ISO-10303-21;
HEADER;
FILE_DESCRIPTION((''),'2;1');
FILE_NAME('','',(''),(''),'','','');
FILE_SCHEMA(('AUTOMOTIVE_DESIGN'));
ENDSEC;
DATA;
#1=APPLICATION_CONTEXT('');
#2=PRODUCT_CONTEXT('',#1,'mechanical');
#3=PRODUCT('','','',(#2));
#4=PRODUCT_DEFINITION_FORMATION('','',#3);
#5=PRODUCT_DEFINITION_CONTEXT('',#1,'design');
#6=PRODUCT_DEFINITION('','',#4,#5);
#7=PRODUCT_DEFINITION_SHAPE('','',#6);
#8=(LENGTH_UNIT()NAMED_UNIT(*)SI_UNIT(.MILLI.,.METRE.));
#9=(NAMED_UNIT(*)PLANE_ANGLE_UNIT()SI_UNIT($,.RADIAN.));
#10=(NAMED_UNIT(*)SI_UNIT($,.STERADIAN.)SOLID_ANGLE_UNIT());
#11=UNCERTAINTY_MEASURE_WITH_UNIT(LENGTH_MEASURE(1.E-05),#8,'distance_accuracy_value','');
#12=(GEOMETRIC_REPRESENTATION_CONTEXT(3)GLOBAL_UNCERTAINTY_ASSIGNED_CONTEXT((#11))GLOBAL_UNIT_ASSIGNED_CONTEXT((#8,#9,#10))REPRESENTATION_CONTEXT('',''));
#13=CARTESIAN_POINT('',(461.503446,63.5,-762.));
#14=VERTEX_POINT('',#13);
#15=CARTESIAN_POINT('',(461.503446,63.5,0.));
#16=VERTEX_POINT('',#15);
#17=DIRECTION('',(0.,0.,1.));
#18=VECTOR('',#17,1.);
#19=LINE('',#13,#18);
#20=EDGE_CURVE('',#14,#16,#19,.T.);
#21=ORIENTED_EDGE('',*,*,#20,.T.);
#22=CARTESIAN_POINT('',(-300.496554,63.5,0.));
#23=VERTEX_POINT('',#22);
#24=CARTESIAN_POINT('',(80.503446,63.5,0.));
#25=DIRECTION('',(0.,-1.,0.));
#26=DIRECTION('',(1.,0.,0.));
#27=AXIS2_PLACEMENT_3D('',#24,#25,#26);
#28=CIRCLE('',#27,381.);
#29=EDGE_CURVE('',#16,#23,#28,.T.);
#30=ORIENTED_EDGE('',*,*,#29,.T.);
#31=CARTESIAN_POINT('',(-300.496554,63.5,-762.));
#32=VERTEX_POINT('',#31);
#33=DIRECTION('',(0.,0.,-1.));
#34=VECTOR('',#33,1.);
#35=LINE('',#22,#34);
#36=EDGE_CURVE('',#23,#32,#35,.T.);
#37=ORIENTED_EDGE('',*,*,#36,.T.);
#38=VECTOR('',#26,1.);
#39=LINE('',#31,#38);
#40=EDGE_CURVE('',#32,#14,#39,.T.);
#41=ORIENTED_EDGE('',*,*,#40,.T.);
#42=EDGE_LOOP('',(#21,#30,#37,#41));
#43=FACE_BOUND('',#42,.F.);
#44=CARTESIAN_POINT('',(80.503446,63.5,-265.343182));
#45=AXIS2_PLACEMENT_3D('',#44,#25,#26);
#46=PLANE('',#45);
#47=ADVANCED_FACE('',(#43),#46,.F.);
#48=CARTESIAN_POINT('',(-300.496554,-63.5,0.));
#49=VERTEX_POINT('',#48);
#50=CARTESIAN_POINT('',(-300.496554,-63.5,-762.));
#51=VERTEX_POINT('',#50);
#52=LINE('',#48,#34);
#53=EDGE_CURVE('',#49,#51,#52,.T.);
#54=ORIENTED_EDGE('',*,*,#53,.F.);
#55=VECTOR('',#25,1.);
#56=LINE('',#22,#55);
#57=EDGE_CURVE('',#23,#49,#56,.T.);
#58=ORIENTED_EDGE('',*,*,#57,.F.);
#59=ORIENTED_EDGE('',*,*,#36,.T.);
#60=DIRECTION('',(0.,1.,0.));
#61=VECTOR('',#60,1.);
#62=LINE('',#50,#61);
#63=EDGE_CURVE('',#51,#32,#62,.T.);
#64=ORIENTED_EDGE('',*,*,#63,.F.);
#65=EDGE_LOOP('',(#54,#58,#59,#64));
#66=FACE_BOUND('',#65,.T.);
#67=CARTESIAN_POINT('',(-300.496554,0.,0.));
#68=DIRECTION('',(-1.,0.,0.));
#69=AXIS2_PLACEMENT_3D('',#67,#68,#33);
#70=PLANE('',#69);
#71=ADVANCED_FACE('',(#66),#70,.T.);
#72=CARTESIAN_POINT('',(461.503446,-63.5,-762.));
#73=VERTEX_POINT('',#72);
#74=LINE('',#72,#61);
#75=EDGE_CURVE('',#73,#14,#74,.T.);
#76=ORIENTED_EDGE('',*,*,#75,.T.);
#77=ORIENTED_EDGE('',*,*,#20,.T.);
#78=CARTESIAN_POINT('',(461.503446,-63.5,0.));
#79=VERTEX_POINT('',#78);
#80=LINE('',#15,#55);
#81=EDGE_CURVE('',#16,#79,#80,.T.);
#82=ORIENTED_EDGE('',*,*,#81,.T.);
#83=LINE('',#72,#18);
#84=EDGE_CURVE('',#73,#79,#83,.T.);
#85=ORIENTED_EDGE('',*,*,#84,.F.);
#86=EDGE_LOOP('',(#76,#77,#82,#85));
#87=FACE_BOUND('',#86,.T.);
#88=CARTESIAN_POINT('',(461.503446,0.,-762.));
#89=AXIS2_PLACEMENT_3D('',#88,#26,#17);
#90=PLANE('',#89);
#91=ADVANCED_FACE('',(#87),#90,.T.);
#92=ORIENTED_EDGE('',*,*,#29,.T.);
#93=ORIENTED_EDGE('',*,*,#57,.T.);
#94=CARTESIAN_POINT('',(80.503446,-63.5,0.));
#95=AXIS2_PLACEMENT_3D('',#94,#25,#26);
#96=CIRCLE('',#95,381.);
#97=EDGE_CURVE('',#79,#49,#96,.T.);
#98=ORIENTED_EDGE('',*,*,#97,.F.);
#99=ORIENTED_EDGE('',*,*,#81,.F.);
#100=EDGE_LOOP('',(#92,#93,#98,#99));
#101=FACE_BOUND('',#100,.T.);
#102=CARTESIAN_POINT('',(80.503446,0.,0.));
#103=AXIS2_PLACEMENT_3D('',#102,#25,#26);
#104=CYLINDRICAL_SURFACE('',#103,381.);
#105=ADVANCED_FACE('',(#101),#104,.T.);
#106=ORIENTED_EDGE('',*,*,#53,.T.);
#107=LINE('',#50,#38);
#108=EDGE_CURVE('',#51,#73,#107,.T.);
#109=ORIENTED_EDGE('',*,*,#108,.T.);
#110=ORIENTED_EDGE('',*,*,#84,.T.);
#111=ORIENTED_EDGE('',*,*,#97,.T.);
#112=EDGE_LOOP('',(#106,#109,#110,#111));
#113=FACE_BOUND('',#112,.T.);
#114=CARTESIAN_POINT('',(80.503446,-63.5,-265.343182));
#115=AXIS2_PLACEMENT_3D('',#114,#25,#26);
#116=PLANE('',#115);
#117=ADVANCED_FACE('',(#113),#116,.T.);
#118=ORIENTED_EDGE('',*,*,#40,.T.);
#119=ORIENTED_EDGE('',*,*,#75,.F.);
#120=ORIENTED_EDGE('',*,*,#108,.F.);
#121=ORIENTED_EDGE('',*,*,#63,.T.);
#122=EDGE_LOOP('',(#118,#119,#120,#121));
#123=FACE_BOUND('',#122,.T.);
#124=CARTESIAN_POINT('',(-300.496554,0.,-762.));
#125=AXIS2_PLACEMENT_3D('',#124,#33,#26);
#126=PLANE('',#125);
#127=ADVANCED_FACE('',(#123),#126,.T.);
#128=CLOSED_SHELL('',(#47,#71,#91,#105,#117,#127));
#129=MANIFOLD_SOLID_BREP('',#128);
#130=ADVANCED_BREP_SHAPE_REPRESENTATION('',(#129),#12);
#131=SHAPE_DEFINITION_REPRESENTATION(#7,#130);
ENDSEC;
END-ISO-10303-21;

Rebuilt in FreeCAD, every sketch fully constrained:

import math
import FreeCAD as App
import Part
import Sketcher

V = App.Vector
Q = App.Units.Quantity

doc = App.newDocument("Part")
body = doc.addObject("PartDesign::Body", "Body")

# Sketch on XZ plane
sketch1 = body.newObject("Sketcher::SketchObject", "Sketch")
sketch1.AttachmentSupport = (doc.getObject("XZ_Plane"), [""])
sketch1.MapMode = "FlatFace"
sketch1.addGeometry(Part.LineSegment(V(462, -762, 0), V(462, 0, 0)), False)
sketch1.addGeometry(Part.ArcOfCircle(Part.Circle(V(81, 0, 0), V(0, 0, 1), 381), math.radians(0), math.radians(180)), False)
sketch1.addGeometry(Part.LineSegment(V(-300, 0, 0), V(-300, -762, 0)), False)
sketch1.addGeometry(Part.LineSegment(V(-300, -762, 0), V(462, -762, 0)), False)
sketch1.addConstraint(Sketcher.Constraint("Tangent", 0, 2, 1, 1))
sketch1.addConstraint(Sketcher.Constraint("Tangent", 1, 2, 2, 1))
sketch1.addConstraint(Sketcher.Constraint("Coincident", 2, 2, 3, 1))
sketch1.addConstraint(Sketcher.Constraint("Coincident", 3, 2, 0, 1))
sketch1.addConstraint(Sketcher.Constraint("Vertical", 0))
sketch1.addConstraint(Sketcher.Constraint("Vertical", 2))
sketch1.addConstraint(Sketcher.Constraint("Horizontal", 3))
sketch1.addConstraint(Sketcher.Constraint("PointOnObject", 1, 3, -1))
sketch1.addConstraint(Sketcher.Constraint("Equal", 3, 0))
sketch1.addConstraint(Sketcher.Constraint("Radius", 1, Q("15 in")))
sketch1.addConstraint(Sketcher.Constraint("DistanceX", -1, 1, 1, 3, 80.503446))
pad1 = body.newObject("PartDesign::Pad", "Pad")
pad1.Profile = sketch1
pad1.Length = Q("5 in")
pad1.Midplane = True

doc.recompute()
